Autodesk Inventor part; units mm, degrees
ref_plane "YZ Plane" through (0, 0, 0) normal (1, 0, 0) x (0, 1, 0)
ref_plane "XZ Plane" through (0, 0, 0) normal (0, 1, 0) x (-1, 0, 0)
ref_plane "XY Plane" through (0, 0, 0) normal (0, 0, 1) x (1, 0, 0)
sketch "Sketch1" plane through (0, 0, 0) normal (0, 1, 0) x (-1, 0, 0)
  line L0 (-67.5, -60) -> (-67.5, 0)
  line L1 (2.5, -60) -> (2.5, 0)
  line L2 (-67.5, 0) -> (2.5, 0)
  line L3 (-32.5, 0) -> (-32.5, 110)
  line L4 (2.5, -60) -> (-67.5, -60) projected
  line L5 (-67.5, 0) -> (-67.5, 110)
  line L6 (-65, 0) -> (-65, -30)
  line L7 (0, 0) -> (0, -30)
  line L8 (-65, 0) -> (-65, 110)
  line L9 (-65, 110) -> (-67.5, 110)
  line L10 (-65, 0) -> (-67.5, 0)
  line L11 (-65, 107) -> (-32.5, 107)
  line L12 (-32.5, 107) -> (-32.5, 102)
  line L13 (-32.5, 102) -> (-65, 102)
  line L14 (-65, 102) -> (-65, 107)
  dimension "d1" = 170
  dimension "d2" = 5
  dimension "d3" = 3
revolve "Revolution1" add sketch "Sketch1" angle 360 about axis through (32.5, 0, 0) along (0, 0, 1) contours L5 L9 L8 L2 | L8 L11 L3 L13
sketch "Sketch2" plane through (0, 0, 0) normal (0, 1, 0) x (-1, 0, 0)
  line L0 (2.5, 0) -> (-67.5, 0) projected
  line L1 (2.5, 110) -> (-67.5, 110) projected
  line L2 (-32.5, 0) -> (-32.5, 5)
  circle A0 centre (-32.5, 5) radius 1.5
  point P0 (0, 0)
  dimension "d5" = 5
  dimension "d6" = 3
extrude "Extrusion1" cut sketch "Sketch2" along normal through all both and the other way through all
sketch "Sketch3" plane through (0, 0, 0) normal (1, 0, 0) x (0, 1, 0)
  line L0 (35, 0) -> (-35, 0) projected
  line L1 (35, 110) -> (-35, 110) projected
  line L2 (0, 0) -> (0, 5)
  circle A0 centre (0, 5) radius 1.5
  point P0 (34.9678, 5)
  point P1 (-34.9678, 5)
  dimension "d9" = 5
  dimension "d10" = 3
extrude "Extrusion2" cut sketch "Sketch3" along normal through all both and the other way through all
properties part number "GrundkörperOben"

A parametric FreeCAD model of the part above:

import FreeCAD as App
import Part
import Sketcher
Q = App.Units.Quantity

doc = App.newDocument("Part")
body = doc.addObject("PartDesign::Body", "Body")

sketch1 = body.newObject("Sketcher::SketchObject", "Sketch")
sketch1.AttachmentSupport = (doc.getObject("XZ_Plane"), [""])
sketch1.MapMode = "FlatFace"
sketch1.addGeometry([
    Part.LineSegment(App.Vector(67.5, 110, 0), App.Vector(67.5, 0, 0)),
    Part.LineSegment(App.Vector(67.5, 0, 0), App.Vector(65, 0, 0)),
    Part.LineSegment(App.Vector(65, 0, 0), App.Vector(65, 102, 0)),
    Part.LineSegment(App.Vector(65, 102, 0), App.Vector(32.5, 102, 0)),
    Part.LineSegment(App.Vector(32.5, 102, 0), App.Vector(32.5, 107, 0)),
    Part.LineSegment(App.Vector(32.5, 107, 0), App.Vector(65, 107, 0)),
    Part.LineSegment(App.Vector(65, 107, 0), App.Vector(65, 110, 0)),
    Part.LineSegment(App.Vector(65, 110, 0), App.Vector(67.5, 110, 0)),
], False)
sketch1.addGeometry(Part.LineSegment(App.Vector(32.5, 0, 0), App.Vector(32.5, 110, 0)), True)
sketch1.addConstraint([
    Sketcher.Constraint("Coincident", 0, 2, 1, 1),
    Sketcher.Constraint("Coincident", 1, 2, 2, 1),
    Sketcher.Constraint("Coincident", 2, 2, 3, 1),
    Sketcher.Constraint("Coincident", 3, 2, 4, 1),
    Sketcher.Constraint("Coincident", 4, 2, 5, 1),
    Sketcher.Constraint("Coincident", 5, 2, 6, 1),
    Sketcher.Constraint("Coincident", 6, 2, 7, 1),
    Sketcher.Constraint("Coincident", 7, 2, 0, 1),
    Sketcher.Constraint("Vertical", 0),
    Sketcher.Constraint("Horizontal", 1),
    Sketcher.Constraint("Vertical", 2),
    Sketcher.Constraint("Horizontal", 3),
    Sketcher.Constraint("Vertical", 4),
    Sketcher.Constraint("Horizontal", 5),
    Sketcher.Constraint("Vertical", 6),
    Sketcher.Constraint("Horizontal", 7),
    Sketcher.Constraint("Vertical", 8),
    Sketcher.Constraint("PointOnObject", 0, 2, -1),
    Sketcher.Constraint("PointOnObject", 8, 1, -1),
    Sketcher.Constraint("Horizontal", 7, 2, 8, 2),
    Sketcher.Constraint("Vertical", 2, 2, 5, 2),
    Sketcher.Constraint("Vertical", 4, 2, 8, 1),
    Sketcher.Constraint("DistanceY", 4, 1, 4, 2, Q("5 mm")),
    Sketcher.Constraint("DistanceY", 6, 1, 6, 2, Q("3 mm")),
    Sketcher.Constraint("DistanceY", 0, 2, 0, 1, Q("110 mm")),
    Sketcher.Constraint("DistanceX", 1, 2, 1, 1, Q("2.5 mm")),
    Sketcher.Constraint("DistanceX", 3, 2, 3, 1, Q("32.5 mm")),
    Sketcher.Constraint("DistanceX", -1, 1, 1, 2, Q("65 mm")),
])
revolution = body.newObject("PartDesign::Revolution", "Revolution")
revolution.Profile = sketch1
revolution.ReferenceAxis = (sketch1, ["Axis0"])
revolution.Angle = 360

sketch2 = body.newObject("Sketcher::SketchObject", "Sketch001")
sketch2.AttachmentSupport = (doc.getObject("XZ_Plane"), [""])
sketch2.MapMode = "FlatFace"
sketch2.addGeometry(Part.Circle(App.Vector(32.5, 5, 0), App.Vector(0, 0, 1), 1.5), False)
sketch2.addConstraint([
    Sketcher.Constraint("Diameter", 0, Q("3 mm")),
    Sketcher.Constraint("DistanceY", -1, 1, 0, 3, Q("5 mm")),
    Sketcher.Constraint("DistanceX", -1, 1, 0, 3, Q("32.5 mm")),
])
pocket1 = body.newObject("PartDesign::Pocket", "Pocket")
pocket1.Profile = sketch2
pocket1.Type = "ThroughAll"
pocket1.Midplane = True

sketch3 = body.newObject("Sketcher::SketchObject", "Sketch002")
sketch3.AttachmentSupport = (doc.getObject("YZ_Plane"), [""])
sketch3.MapMode = "FlatFace"
sketch3.addGeometry(Part.Circle(App.Vector(0, 5, 0), App.Vector(0, 0, 1), 1.5), False)
sketch3.addConstraint([
    Sketcher.Constraint("PointOnObject", 0, 3, -2),
    Sketcher.Constraint("Diameter", 0, Q("3 mm")),
    Sketcher.Constraint("DistanceY", -1, 1, 0, 3, Q("5 mm")),
])
pocket2 = body.newObject("PartDesign::Pocket", "Pocket001")
pocket2.Profile = sketch3
pocket2.Type = "ThroughAll"
pocket2.Midplane = True

doc.recompute()
